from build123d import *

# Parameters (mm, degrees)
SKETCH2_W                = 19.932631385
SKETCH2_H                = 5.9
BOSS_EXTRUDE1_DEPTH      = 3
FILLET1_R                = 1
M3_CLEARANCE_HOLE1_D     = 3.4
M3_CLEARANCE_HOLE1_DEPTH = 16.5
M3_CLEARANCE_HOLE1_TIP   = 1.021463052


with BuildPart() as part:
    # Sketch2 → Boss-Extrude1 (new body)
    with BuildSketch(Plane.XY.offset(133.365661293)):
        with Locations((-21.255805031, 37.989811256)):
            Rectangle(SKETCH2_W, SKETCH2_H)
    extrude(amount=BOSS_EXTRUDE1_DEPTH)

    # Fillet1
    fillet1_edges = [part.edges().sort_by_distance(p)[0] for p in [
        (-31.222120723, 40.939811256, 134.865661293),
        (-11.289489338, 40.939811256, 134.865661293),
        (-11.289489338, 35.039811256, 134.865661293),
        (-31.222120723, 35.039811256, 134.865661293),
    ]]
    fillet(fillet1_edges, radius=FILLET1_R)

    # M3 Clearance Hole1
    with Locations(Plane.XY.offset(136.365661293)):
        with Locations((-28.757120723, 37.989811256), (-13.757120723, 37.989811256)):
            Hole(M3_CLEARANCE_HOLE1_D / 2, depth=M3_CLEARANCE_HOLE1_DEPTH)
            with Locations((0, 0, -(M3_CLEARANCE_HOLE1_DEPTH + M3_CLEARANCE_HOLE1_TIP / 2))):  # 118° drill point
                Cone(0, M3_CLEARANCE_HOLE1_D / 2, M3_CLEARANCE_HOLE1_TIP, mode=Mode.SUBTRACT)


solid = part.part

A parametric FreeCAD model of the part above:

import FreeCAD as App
import Part
import Sketcher


def edges_at(feature, points):
    """Names of the edges that pass closest to the given points."""
    edges = feature.Shape.Edges
    near = lambda p: min(range(len(edges)), key=lambda i: edges[i].distToShape(Part.Vertex(*p))[0])
    return sorted({f"Edge{near(p) + 1}" for p in points})


def add_polygon(sketch, points):
    """Adds a closed chain of lines whose ends are joined by coincident constraints."""
    first, n = sketch.GeometryCount, len(points)
    for a, b in zip(points, points[1:] + points[:1]):
        sketch.addGeometry(Part.LineSegment(App.Vector(*a, 0), App.Vector(*b, 0)), False)
    for i in range(n):
        sketch.addConstraint(Sketcher.Constraint("Coincident", first + i, 2, first + (i + 1) % n, 1))

doc = App.newDocument("Part")
body = doc.addObject("PartDesign::Body", "Body")

# Sketch on XY plane
sketch1 = doc.addObject("Sketcher::SketchObject", "Sketch")
body.addObject(sketch1)
sketch1.AttachmentSupport = (doc.XY_Plane, [""])
sketch1.MapMode = "FlatFace"
sketch1.AttachmentOffset = App.Placement(App.Vector(0, 0, 133.365661), App.Rotation())
add_polygon(sketch1, [(-31, 41), (-31, 35), (-11, 35), (-11, 41)])  # lines 0-3
sketch1.addConstraint([
    Sketcher.Constraint("Vertical", 0),
    Sketcher.Constraint("Horizontal", 1),
    Sketcher.Constraint("Vertical", 2),
    Sketcher.Constraint("Horizontal", 3),
    Sketcher.Constraint("DistanceY", 0, 2, 0, 1, 5.9),
    Sketcher.Constraint("DistanceX", 1, 1, 1, 2, 19.932631),
    Sketcher.Constraint("DistanceX", 0, 2, -1, 1, 31.222121),
    Sketcher.Constraint("DistanceY", -1, 1, 0, 2, 35.039811),
])
pad1 = doc.addObject("PartDesign::Pad", "Pad")
body.addObject(pad1)
pad1.Profile = sketch1
pad1.Length = 3
doc.recompute()

fillet = doc.addObject("PartDesign::Fillet", "Fillet")
body.addObject(fillet)
fillet.Base = (pad1, edges_at(pad1, [
    (-31.222, 40.94, 134.866),
    (-11.289, 40.94, 134.866),
    (-11.289, 35.04, 134.866),
    (-31.222, 35.04, 134.866),
]))
fillet.Radius = 1

# Sketch on XY plane
sketch2 = doc.addObject("Sketcher::SketchObject", "Sketch001")
body.addObject(sketch2)
sketch2.AttachmentSupport = (doc.XY_Plane, [""])
sketch2.MapMode = "FlatFace"
sketch2.AttachmentOffset = App.Placement(App.Vector(0, 0, 136.365661), App.Rotation())
sketch2.addGeometry([
    Part.Circle(App.Vector(-28.8, 38, 0), App.Vector(0, 0, 1), 1.7),
    Part.Circle(App.Vector(-13.8, 38, 0), App.Vector(0, 0, 1), 1.7),
], False)
sketch2.addConstraint([
    Sketcher.Constraint("Equal", 0, 1),
    Sketcher.Constraint("Horizontal", 0, 3, 1, 3),
    Sketcher.Constraint("Diameter", 0, 3.4),
    Sketcher.Constraint("DistanceX", 0, 3, 1, 3, 15.0),
    Sketcher.Constraint("DistanceX", 0, 3, -1, 1, 28.757121),
    Sketcher.Constraint("DistanceY", -1, 1, 0, 3, 37.989811),
])
doc.recompute()
hole = doc.addObject("PartDesign::Hole", "Hole")
body.addObject(hole)
hole.Profile = sketch2
hole.ThreadType = "None"
hole.Diameter = 3.4
hole.DepthType = "Dimension"
hole.Depth = 16.5
hole.DrillPoint = "Angled"
hole.DrillPointAngle = 118

doc.recompute()
